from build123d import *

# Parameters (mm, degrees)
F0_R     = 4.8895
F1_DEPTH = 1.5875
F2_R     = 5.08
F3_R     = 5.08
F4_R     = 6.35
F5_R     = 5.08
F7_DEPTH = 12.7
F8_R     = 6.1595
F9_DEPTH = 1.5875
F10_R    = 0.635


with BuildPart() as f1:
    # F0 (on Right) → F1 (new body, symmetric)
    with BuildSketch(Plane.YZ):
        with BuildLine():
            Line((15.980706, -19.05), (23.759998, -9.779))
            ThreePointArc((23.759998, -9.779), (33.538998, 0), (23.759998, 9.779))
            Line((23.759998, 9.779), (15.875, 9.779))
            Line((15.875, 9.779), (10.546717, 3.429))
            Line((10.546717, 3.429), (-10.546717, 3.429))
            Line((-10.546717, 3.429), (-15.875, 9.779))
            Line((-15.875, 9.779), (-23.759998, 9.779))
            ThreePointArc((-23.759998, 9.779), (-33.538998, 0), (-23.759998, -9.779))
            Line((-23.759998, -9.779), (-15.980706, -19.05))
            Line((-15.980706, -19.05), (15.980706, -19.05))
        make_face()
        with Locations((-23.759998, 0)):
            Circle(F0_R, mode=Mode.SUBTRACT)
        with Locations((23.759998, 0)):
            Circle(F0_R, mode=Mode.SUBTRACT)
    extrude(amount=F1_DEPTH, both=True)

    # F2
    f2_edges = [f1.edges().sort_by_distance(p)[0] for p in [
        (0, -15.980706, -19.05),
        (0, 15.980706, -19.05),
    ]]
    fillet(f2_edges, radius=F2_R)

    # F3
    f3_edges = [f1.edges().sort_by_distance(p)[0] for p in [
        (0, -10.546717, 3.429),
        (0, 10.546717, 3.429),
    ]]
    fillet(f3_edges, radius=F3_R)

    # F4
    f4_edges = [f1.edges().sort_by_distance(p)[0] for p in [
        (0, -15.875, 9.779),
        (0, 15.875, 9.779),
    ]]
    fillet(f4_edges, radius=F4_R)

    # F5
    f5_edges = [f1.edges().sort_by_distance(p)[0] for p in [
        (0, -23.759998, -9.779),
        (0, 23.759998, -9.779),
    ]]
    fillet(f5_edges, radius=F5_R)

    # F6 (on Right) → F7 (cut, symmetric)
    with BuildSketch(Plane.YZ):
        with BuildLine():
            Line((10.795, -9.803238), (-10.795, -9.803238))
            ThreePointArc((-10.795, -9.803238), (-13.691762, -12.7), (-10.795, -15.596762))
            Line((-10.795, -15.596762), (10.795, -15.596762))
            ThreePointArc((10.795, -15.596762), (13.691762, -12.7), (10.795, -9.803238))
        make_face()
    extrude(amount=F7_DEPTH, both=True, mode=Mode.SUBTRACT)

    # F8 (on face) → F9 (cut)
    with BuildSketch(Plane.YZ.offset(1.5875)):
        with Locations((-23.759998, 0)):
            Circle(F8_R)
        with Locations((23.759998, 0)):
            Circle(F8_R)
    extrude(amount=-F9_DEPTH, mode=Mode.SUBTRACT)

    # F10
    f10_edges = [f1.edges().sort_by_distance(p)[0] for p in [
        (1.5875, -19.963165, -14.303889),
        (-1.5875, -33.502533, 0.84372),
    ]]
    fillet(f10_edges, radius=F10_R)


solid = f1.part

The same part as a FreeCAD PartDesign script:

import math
import FreeCAD as App
import Part
import Sketcher
Q = App.Units.Quantity


def edges_at(feature, points):
    """Names of the edges that pass closest to the given points."""
    edges = feature.Shape.Edges
    near = lambda p: min(range(len(edges)), key=lambda i: edges[i].distToShape(Part.Vertex(*p))[0])
    return sorted({f"Edge{near(p) + 1}" for p in points})

doc = App.newDocument("Part")
params = doc.addObject("Spreadsheet::Sheet", "Params")
for row, (alias, value) in enumerate([
    ("sketch1_diameter", "0.385 in"),
    ("sketch1_radius", "0.385 in"),
    ("pad1_length", "0.125 in"),
    ("fillet_radius", "0.2 in"),
    ("fillet2_radius", "0.2 in"),
    ("fillet3_radius", "0.25 in"),
    ("fillet4_radius", "0.2 in"),
    ("sketch2_width", "0.85 in"),
    ("pocket1_length", "1 in"),
    ("sketch3_diameter", "0.485 in"),
    ("pocket2_length", "0.0625 in"),
    ("fillet5_radius", "0.025 in"),
], start=1):
    params.set(f"A{row}", alias)
    params.set(f"B{row}", "=" + value)
    params.setAlias(f"B{row}", alias)

body = doc.addObject("PartDesign::Body", "Body")

sketch1 = body.newObject("Sketcher::SketchObject", "Sketch")
sketch1.AttachmentSupport = (doc.getObject("YZ_Plane"), [""])
sketch1.MapMode = "FlatFace"
sketch1.addGeometry([
    Part.LineSegment(App.Vector(16, -19.1, 0), App.Vector(23.8, -9.8, 0)),
    Part.ArcOfCircle(Part.Circle(App.Vector(23.8, 0, 0), App.Vector(0, 0, 1), 9.8), math.radians(-90), math.radians(90)),
    Part.LineSegment(App.Vector(23.8, 9.8, 0), App.Vector(15.9, 9.8, 0)),
    Part.LineSegment(App.Vector(15.9, 9.8, 0), App.Vector(10.5, 3.4, 0)),
    Part.LineSegment(App.Vector(10.5, 3.4, 0), App.Vector(-10.5, 3.4, 0)),
    Part.LineSegment(App.Vector(-10.5, 3.4, 0), App.Vector(-15.9, 9.8, 0)),
    Part.LineSegment(App.Vector(-15.9, 9.8, 0), App.Vector(-23.8, 9.8, 0)),
    Part.ArcOfCircle(Part.Circle(App.Vector(-23.8, 0, 0), App.Vector(0, 0, 1), 9.8), math.radians(90), math.radians(270)),
    Part.LineSegment(App.Vector(-23.8, -9.8, 0), App.Vector(-16, -19.1, 0)),
    Part.LineSegment(App.Vector(-16, -19.1, 0), App.Vector(16, -19.1, 0)),
    Part.Circle(App.Vector(-23.8, 0, 0), App.Vector(0, 0, 1), 4.9),
    Part.Circle(App.Vector(23.8, 0, 0), App.Vector(0, 0, 1), 4.9),
], False)
sketch1.addConstraint([
    Sketcher.Constraint("Coincident", 0, 2, 1, 1),
    Sketcher.Constraint("Tangent", 1, 2, 2, 1),
    Sketcher.Constraint("Coincident", 2, 2, 3, 1),
    Sketcher.Constraint("Coincident", 3, 2, 4, 1),
    Sketcher.Constraint("Coincident", 4, 2, 5, 1),
    Sketcher.Constraint("Coincident", 5, 2, 6, 1),
    Sketcher.Constraint("Tangent", 6, 2, 7, 1),
    Sketcher.Constraint("Coincident", 7, 2, 8, 1),
    Sketcher.Constraint("Coincident", 8, 2, 9, 1),
    Sketcher.Constraint("Coincident", 9, 2, 0, 1),
    Sketcher.Constraint("Horizontal", 2),
    Sketcher.Constraint("Horizontal", 4),
    Sketcher.Constraint("Horizontal", 6),
    Sketcher.Constraint("Horizontal", 9),
    Sketcher.Constraint("Coincident", 10, 3, 7, 3),
    Sketcher.Constraint("Coincident", 11, 3, 1, 3),
    Sketcher.Constraint("Equal", 1, 7),
    Sketcher.Constraint("Equal", 10, 11),
    Sketcher.Constraint("Symmetric", 1, 3, 7, 3, -1, 1),
    Sketcher.Constraint("Symmetric", 2, 2, 5, 2, -2),
    Sketcher.Constraint("Parallel", 0, 3),
    Sketcher.Constraint("Parallel", 5, 8),
    Sketcher.Constraint("Vertical", 11, 3, 0, 2),
    Sketcher.Constraint("Vertical", 6, 2, 7, 2),
    Sketcher.Constraint("Equal", 3, 5),
    Sketcher.Constraint("Diameter", 10, Q("0.385 in")),
    Sketcher.Constraint("Angle", 0, Q("50.000002 deg")),
    Sketcher.Constraint("Radius", 1, Q("0.385 in")),
    Sketcher.Constraint("DistanceY", 8, 2, -1, 1, Q("0.75 in")),
    Sketcher.Constraint("DistanceY", 3, 2, 2, 2, Q("0.25 in")),
    Sketcher.Constraint("DistanceX", 5, 2, 2, 2, Q("1.25 in")),
    Sketcher.Constraint("DistanceX", 9, 1, 9, 2, 31.961412),
])
sketch1.setExpression("Constraints[25]", "Params.sketch1_diameter")
sketch1.setExpression("Constraints[27]", "Params.sketch1_radius")
pad1 = body.newObject("PartDesign::Pad", "Pad")
pad1.Profile = sketch1
pad1.setExpression("Length", "Params.pad1_length")
pad1.Midplane = True
doc.recompute()

fillet = body.newObject("PartDesign::Fillet", "Fillet")
fillet.Base = (pad1, edges_at(pad1, [(0, -15.981, -19.05), (0, 15.981, -19.05)]))
fillet.setExpression("Radius", "Params.fillet_radius")
doc.recompute()

fillet2 = body.newObject("PartDesign::Fillet", "Fillet001")
fillet2.Base = (fillet, edges_at(fillet, [(0, -10.547, 3.429), (0, 10.547, 3.429)]))
fillet2.setExpression("Radius", "Params.fillet2_radius")
doc.recompute()

fillet3 = body.newObject("PartDesign::Fillet", "Fillet002")
fillet3.Base = (fillet2, edges_at(fillet2, [(0, -15.875, 9.779), (0, 15.875, 9.779)]))
fillet3.setExpression("Radius", "Params.fillet3_radius")
doc.recompute()

fillet4 = body.newObject("PartDesign::Fillet", "Fillet003")
fillet4.Base = (fillet3, edges_at(fillet3, [(0, -23.76, -9.779), (0, 23.76, -9.779)]))
fillet4.setExpression("Radius", "Params.fillet4_radius")

sketch2 = body.newObject("Sketcher::SketchObject", "Sketch001")
sketch2.AttachmentSupport = (doc.getObject("YZ_Plane"), [""])
sketch2.MapMode = "FlatFace"
sketch2.addGeometry([
    Part.LineSegment(App.Vector(10.8, -9.8, 0), App.Vector(-10.8, -9.8, 0)),
    Part.ArcOfCircle(Part.Circle(App.Vector(-10.8, -12.7, 0), App.Vector(0, 0, 1), 2.9), math.radians(90), math.radians(270)),
    Part.LineSegment(App.Vector(-10.8, -15.6, 0), App.Vector(10.8, -15.6, 0)),
    Part.ArcOfCircle(Part.Circle(App.Vector(10.8, -12.7, 0), App.Vector(0, 0, 1), 2.9), math.radians(-90), math.radians(90)),
], False)
sketch2.addConstraint([
    Sketcher.Constraint("Tangent", 0, 2, 1, 1),
    Sketcher.Constraint("Tangent", 1, 2, 2, 1),
    Sketcher.Constraint("Tangent", 2, 2, 3, 1),
    Sketcher.Constraint("Tangent", 3, 2, 0, 1),
    Sketcher.Constraint("Horizontal", 0),
    Sketcher.Constraint("Horizontal", 2),
    Sketcher.Constraint("DistanceX", 0, 2, 0, 1, Q("0.85 in")),
    Sketcher.Constraint("DistanceY", 1, 3, -1, 1, Q("0.5 in")),
    Sketcher.Constraint("DistanceX", 1, 3, -1, 1, Q("0.425 in")),
    Sketcher.Constraint("Radius", 1, 2.896762),
])
sketch2.setExpression("Constraints[6]", "Params.sketch2_width")
pocket1 = body.newObject("PartDesign::Pocket", "Pocket")
pocket1.Profile = sketch2
pocket1.setExpression("Length", "Params.pocket1_length")
pocket1.Midplane = True

sketch3 = body.newObject("Sketcher::SketchObject", "Sketch002")
sketch3.AttachmentSupport = (doc.getObject("YZ_Plane"), [""])
sketch3.MapMode = "FlatFace"
sketch3.AttachmentOffset = App.Placement(App.Vector(0, 0, 0.0625 * 25.4), App.Rotation())
sketch3.addGeometry([
    Part.Circle(App.Vector(-24, 0, 0), App.Vector(0, 0, 1), 6),
    Part.Circle(App.Vector(24, 0, 0), App.Vector(0, 0, 1), 6),
], False)
sketch3.addConstraint([
    Sketcher.Constraint("Equal", 0, 1),
    Sketcher.Constraint("Symmetric", 0, 3, 1, 3, -1, 1),
    Sketcher.Constraint("PointOnObject", 0, 3, -1),
    Sketcher.Constraint("Diameter", 0, Q("0.485 in")),
    Sketcher.Constraint("DistanceX", 0, 3, -1, 1, 23.759998),
])
sketch3.setExpression("Constraints[3]", "Params.sketch3_diameter")
pocket2 = body.newObject("PartDesign::Pocket", "Pocket001")
pocket2.Profile = sketch3
pocket2.setExpression("Length", "Params.pocket2_length")
doc.recompute()

fillet5 = body.newObject("PartDesign::Fillet", "Fillet004")
fillet5.Base = (pocket2, edges_at(pocket2, [(1.587, -19.963, -14.304), (-1.587, -33.503, 0.844)]))
fillet5.setExpression("Radius", "Params.fillet5_radius")

doc.recompute()
